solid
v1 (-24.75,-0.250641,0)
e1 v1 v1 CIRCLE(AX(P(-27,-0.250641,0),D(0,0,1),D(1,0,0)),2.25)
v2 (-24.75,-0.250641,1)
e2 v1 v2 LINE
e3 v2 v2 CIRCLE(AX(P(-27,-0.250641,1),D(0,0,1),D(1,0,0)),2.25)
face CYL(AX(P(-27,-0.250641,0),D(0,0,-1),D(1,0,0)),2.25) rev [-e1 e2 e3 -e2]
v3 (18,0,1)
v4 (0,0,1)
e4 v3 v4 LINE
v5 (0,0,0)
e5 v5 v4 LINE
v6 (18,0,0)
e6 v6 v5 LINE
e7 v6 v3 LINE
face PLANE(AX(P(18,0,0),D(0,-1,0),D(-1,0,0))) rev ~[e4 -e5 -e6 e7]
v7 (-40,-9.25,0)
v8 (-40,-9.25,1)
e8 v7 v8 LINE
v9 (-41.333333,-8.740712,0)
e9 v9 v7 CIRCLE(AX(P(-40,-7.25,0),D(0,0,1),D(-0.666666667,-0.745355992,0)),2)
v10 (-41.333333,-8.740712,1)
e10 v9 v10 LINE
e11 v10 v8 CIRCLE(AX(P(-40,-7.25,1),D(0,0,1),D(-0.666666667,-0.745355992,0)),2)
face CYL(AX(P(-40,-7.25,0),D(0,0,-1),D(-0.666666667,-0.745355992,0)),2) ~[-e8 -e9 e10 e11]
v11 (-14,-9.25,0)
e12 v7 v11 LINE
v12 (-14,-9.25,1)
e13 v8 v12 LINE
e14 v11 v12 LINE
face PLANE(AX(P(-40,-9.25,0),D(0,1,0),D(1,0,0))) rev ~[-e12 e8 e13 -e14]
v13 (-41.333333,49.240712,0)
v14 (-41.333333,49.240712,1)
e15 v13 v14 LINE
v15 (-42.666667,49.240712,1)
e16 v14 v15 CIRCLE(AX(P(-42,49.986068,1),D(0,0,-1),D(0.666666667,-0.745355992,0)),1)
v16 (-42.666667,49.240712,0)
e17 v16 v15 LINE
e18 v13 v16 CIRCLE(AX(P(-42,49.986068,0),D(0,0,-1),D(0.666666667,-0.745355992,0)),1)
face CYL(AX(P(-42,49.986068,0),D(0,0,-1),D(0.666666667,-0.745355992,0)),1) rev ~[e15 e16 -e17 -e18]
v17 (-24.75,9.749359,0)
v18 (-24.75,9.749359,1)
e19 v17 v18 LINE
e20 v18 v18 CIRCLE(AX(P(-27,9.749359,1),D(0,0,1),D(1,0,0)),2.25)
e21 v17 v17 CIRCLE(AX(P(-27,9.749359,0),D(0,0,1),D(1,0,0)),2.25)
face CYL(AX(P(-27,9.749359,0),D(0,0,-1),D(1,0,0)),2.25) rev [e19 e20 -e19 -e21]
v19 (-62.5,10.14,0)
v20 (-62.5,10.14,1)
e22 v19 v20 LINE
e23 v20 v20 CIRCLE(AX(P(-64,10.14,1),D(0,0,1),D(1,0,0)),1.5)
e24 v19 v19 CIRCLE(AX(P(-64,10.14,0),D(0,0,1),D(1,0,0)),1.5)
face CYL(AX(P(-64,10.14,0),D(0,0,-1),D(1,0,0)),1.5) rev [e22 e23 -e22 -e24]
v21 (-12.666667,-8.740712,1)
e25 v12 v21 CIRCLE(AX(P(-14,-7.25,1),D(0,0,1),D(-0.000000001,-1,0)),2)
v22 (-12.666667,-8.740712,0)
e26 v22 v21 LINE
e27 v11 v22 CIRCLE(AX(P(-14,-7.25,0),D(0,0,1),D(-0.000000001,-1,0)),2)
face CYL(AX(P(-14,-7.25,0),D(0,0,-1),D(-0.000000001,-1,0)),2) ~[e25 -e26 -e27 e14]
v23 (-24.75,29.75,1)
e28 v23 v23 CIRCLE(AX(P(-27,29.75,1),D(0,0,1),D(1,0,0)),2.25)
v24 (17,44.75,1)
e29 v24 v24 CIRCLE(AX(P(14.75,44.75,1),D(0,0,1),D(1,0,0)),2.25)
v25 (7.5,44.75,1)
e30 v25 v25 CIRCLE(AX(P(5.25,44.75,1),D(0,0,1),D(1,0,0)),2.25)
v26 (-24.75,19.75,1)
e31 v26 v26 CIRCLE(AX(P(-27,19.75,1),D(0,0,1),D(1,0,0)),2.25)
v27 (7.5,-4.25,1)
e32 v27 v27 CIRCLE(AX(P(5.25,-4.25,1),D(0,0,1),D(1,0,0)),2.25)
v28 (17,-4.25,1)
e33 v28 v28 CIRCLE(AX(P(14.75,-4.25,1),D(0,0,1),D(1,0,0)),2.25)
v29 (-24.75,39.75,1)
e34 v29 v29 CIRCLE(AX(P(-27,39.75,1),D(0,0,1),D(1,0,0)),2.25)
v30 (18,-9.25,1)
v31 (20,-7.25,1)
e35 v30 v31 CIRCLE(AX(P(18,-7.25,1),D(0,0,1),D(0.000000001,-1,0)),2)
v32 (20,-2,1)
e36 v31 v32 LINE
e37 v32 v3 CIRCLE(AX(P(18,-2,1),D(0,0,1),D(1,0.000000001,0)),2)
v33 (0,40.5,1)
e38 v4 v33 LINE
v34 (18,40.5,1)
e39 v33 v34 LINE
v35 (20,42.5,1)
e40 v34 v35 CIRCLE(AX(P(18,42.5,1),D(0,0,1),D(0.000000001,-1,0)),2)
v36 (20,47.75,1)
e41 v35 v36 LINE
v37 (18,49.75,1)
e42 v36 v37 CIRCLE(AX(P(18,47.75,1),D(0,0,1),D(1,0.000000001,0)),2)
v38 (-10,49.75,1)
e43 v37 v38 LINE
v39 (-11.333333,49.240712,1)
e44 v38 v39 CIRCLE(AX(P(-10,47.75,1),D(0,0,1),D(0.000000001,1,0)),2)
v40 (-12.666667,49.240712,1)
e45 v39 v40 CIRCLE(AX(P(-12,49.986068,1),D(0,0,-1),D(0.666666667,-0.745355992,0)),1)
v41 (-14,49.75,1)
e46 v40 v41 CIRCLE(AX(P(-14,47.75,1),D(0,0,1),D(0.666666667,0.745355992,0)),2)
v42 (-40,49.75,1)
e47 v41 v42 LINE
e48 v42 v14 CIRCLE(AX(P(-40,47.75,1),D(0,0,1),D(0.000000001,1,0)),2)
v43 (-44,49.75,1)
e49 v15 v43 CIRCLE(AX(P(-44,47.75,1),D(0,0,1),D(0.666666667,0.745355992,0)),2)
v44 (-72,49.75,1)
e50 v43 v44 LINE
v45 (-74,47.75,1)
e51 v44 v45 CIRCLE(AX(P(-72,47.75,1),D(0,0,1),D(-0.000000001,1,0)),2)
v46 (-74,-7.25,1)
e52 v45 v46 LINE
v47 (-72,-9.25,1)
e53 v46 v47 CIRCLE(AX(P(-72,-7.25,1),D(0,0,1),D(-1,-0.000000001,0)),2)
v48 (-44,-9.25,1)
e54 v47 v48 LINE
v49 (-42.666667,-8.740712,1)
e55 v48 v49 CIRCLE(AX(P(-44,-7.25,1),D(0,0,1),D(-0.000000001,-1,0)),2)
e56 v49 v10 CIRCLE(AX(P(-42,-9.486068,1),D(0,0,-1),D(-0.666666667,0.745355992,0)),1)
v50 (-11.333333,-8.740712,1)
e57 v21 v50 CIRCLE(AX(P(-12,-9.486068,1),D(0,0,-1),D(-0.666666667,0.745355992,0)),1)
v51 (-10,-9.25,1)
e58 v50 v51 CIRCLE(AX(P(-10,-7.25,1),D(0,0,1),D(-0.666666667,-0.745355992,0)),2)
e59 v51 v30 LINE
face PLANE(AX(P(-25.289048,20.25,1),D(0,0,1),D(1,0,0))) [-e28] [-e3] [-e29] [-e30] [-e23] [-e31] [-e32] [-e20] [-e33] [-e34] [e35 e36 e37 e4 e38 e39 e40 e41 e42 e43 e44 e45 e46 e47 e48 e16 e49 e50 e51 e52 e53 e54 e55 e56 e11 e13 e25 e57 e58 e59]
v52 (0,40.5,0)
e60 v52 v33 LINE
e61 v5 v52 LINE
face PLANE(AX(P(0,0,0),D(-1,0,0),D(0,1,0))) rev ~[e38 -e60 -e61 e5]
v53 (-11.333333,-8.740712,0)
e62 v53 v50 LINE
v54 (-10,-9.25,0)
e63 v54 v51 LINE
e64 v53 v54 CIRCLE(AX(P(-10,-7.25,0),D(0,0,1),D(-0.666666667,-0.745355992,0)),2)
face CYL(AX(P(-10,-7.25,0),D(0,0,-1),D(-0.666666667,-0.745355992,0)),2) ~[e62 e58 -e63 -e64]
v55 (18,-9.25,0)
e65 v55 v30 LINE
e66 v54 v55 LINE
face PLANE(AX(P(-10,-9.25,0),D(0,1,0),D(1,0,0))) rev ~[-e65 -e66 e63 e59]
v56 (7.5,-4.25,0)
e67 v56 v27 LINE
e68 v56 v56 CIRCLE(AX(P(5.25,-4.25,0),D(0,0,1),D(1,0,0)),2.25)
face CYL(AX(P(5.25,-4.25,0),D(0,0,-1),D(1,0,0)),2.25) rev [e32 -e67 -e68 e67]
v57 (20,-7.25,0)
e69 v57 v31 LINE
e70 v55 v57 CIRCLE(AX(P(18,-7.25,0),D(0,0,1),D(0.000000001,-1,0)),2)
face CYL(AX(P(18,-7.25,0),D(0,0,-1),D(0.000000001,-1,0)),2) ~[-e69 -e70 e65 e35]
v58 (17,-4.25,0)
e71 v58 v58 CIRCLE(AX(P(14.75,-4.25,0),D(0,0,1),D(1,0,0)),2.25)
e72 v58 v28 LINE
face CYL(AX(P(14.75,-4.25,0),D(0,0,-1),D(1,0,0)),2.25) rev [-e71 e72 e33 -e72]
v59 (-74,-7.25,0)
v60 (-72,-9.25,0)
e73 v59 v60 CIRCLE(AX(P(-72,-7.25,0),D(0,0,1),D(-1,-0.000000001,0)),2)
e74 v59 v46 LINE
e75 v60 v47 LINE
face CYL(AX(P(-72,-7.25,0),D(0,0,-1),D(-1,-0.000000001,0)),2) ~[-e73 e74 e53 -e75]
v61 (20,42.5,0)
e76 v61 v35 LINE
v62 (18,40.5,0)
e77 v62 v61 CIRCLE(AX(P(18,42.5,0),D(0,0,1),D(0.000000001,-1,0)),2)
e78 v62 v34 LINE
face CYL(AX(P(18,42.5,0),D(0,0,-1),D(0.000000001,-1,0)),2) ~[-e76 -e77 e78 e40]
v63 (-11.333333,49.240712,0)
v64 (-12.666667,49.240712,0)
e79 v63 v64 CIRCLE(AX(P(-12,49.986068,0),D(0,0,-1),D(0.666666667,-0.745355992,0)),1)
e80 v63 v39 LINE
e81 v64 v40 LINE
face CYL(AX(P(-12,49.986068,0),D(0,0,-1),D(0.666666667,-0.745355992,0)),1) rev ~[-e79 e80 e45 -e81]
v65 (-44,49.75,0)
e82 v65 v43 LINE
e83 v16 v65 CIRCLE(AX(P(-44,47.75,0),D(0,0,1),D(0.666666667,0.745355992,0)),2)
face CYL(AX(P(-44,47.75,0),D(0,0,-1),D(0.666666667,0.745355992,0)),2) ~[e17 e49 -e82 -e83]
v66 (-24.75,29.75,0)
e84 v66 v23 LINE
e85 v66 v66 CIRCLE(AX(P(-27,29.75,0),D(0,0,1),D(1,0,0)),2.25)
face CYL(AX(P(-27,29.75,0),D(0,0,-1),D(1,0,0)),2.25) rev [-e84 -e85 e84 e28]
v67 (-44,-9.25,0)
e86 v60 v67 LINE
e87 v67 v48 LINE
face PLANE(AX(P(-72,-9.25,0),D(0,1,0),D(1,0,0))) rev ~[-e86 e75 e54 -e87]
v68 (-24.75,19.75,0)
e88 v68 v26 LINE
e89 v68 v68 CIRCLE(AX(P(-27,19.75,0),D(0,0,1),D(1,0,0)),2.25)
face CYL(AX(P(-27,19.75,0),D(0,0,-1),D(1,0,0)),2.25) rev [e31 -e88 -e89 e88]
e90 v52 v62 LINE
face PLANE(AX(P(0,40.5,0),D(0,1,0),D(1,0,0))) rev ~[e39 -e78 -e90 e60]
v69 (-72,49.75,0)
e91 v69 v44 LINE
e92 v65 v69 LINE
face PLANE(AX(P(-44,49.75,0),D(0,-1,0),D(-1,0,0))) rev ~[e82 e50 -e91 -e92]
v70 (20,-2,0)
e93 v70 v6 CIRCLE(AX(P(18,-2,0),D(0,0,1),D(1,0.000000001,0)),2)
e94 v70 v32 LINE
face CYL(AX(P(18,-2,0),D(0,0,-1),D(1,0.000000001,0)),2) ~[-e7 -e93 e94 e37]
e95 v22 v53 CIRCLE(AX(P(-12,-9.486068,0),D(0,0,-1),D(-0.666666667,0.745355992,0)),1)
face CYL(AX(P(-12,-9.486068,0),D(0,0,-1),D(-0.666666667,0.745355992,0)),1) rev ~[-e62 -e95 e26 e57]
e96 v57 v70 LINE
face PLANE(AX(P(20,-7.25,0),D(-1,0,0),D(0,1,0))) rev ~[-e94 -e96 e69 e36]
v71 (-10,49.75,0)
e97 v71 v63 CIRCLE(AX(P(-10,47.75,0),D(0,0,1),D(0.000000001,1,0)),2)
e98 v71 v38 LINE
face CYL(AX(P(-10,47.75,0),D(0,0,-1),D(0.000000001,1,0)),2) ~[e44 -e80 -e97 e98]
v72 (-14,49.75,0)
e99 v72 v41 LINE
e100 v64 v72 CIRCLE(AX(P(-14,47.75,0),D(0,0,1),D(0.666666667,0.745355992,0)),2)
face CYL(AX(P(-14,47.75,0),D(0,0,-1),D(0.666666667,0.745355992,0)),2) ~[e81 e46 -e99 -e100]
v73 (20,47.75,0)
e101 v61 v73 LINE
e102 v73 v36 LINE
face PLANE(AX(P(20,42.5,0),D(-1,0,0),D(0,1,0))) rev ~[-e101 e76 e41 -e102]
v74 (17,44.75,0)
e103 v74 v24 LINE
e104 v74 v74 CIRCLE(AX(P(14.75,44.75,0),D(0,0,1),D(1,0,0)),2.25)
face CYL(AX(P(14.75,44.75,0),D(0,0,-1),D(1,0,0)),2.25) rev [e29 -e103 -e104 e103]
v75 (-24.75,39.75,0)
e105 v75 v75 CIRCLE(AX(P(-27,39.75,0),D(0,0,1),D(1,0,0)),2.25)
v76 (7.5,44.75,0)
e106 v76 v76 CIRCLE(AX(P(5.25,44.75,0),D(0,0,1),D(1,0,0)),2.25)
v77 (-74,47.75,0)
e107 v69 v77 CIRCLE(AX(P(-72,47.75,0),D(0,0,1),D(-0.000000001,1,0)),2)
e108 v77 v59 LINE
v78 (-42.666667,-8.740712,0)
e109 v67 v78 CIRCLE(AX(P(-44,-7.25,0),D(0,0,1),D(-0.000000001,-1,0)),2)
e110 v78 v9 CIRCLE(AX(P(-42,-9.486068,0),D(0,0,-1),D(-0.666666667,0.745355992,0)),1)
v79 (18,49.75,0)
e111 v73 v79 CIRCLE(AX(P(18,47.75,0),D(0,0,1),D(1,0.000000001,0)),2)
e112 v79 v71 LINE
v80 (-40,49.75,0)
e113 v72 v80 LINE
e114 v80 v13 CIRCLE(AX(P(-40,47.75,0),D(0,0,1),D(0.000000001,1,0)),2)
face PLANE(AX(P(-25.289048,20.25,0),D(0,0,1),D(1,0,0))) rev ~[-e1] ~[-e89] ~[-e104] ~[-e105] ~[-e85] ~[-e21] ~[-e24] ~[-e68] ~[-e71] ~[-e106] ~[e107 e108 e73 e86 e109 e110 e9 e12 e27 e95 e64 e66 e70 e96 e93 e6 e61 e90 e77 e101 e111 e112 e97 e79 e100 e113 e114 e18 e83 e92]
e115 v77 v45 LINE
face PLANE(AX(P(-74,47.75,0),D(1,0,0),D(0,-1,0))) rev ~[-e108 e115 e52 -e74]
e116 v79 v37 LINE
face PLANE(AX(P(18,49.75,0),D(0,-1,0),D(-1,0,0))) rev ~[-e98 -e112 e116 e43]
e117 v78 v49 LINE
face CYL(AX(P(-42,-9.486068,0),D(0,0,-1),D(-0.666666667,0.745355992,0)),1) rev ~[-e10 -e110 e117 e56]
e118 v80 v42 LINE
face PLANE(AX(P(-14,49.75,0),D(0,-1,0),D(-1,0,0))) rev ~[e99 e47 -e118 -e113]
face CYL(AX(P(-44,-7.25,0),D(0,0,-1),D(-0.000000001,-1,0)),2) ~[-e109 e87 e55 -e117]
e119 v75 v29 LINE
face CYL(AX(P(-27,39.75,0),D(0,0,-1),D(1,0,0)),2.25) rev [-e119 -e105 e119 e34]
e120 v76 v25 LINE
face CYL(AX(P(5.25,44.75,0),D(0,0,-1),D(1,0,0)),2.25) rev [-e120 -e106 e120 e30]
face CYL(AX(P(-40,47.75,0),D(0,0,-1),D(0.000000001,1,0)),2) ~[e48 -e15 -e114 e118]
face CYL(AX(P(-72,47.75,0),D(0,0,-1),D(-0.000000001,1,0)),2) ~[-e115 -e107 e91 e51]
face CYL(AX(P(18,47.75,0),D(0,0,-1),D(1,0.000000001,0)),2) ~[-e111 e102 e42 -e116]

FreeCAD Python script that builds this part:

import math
import FreeCAD as App
import Part
import Sketcher

doc = App.newDocument("Part")
params = doc.addObject("Spreadsheet::Sheet", "Params")
for row, (alias, value) in enumerate([
    ("sketch1_diameter", "3 mm"),
    ("sketch1_radius", "2 mm"),
    ("sketch1_radius2", "1 mm"),
    ("sketch1_diameter2", "4.5 mm"),
    ("sketch1_width", "28 mm"),
    ("pad1_length", "1 mm"),
], start=1):
    params.set(f"A{row}", alias)
    params.set(f"B{row}", "=" + value)
    params.setAlias(f"B{row}", alias)

body = doc.addObject("PartDesign::Body", "Body")

sketch1 = body.newObject("Sketcher::SketchObject", "Sketch")
sketch1.AttachmentSupport = (doc.getObject("XY_Plane"), [""])
sketch1.MapMode = "FlatFace"
sketch1.addGeometry([
    Part.LineSegment(App.Vector(20, 42.5, 0), App.Vector(20, 47.8, 0)),
    Part.ArcOfCircle(Part.Circle(App.Vector(18, 47.7, 0), App.Vector(0, 0, 1), 2), math.radians(0), math.radians(90)),
    Part.LineSegment(App.Vector(18, 49.8, 0), App.Vector(-10, 49.8, 0)),
    Part.ArcOfCircle(Part.Circle(App.Vector(-10, 47.8, 0), App.Vector(0, 0, 1), 2), math.radians(90), math.radians(132)),
    Part.ArcOfCircle(Part.Circle(App.Vector(-12, 50, 0), App.Vector(0, 0, 1), 1), math.radians(-132), math.radians(-48)),
    Part.ArcOfCircle(Part.Circle(App.Vector(-14, 47.8, 0), App.Vector(0, 0, 1), 2), math.radians(48), math.radians(90)),
    Part.LineSegment(App.Vector(-14, 49.8, 0), App.Vector(-40, 49.8, 0)),
    Part.ArcOfCircle(Part.Circle(App.Vector(-40, 47.8, 0), App.Vector(0, 0, 1), 2), math.radians(90), math.radians(132)),
    Part.ArcOfCircle(Part.Circle(App.Vector(-42, 50, 0), App.Vector(0, 0, 1), 1), math.radians(-132), math.radians(-48)),
    Part.ArcOfCircle(Part.Circle(App.Vector(-44, 47.8, 0), App.Vector(0, 0, 1), 2), math.radians(48), math.radians(90)),
    Part.LineSegment(App.Vector(-44, 49.8, 0), App.Vector(-72, 49.8, 0)),
    Part.ArcOfCircle(Part.Circle(App.Vector(-72, 47.7, 0), App.Vector(0, 0, 1), 2), math.radians(90), math.radians(180)),
    Part.LineSegment(App.Vector(-74, 47.8, 0), App.Vector(-74, -7.2, 0)),
    Part.ArcOfCircle(Part.Circle(App.Vector(-72, -7.2, 0), App.Vector(0, 0, 1), 2), math.radians(-180), math.radians(-90)),
    Part.LineSegment(App.Vector(-72, -9.2, 0), App.Vector(-44, -9.2, 0)),
    Part.ArcOfCircle(Part.Circle(App.Vector(-44, -7.3, 0), App.Vector(0, 0, 1), 2), math.radians(-90), math.radians(-48)),
    Part.ArcOfCircle(Part.Circle(App.Vector(-42, -9.5, 0), App.Vector(0, 0, 1), 1), math.radians(48), math.radians(132)),
    Part.ArcOfCircle(Part.Circle(App.Vector(-40, -7.3, 0), App.Vector(0, 0, 1), 2), math.radians(-132), math.radians(-90)),
    Part.LineSegment(App.Vector(-40, -9.2, 0), App.Vector(-14, -9.2, 0)),
    Part.ArcOfCircle(Part.Circle(App.Vector(-14, -7.3, 0), App.Vector(0, 0, 1), 2), math.radians(-90), math.radians(-48)),
    Part.ArcOfCircle(Part.Circle(App.Vector(-12, -9.5, 0), App.Vector(0, 0, 1), 1), math.radians(48), math.radians(132)),
    Part.ArcOfCircle(Part.Circle(App.Vector(-10, -7.3, 0), App.Vector(0, 0, 1), 2), math.radians(-132), math.radians(-90)),
    Part.LineSegment(App.Vector(-10, -9.2, 0), App.Vector(18, -9.2, 0)),
    Part.ArcOfCircle(Part.Circle(App.Vector(18, -7.2, 0), App.Vector(0, 0, 1), 2), math.radians(-90), math.radians(0)),
    Part.LineSegment(App.Vector(20, -7.2, 0), App.Vector(20, -2, 0)),
    Part.ArcOfCircle(Part.Circle(App.Vector(18, -2, 0), App.Vector(0, 0, 1), 2), math.radians(0), math.radians(90)),
    Part.LineSegment(App.Vector(18, 0, 0), App.Vector(0, 0, 0)),
    Part.LineSegment(App.Vector(0, 0, 0), App.Vector(0, 40.5, 0)),
    Part.LineSegment(App.Vector(0, 40.5, 0), App.Vector(18, 40.5, 0)),
    Part.ArcOfCircle(Part.Circle(App.Vector(18, 42.5, 0), App.Vector(0, 0, 1), 2), math.radians(-90), math.radians(0)),
    Part.Circle(App.Vector(-27, -0.3, 0), App.Vector(0, 0, 1), 2.2),
    Part.Circle(App.Vector(-64, 10.1, 0), App.Vector(0, 0, 1), 1.5),
    Part.Circle(App.Vector(-27, 9.7, 0), App.Vector(0, 0, 1), 2.2),
    Part.Circle(App.Vector(-27, 19.8, 0), App.Vector(0, 0, 1), 2.2),
    Part.Circle(App.Vector(5.2, -4.2, 0), App.Vector(0, 0, 1), 2.2),
    Part.Circle(App.Vector(14.8, -4.2, 0), App.Vector(0, 0, 1), 2.2),
    Part.Circle(App.Vector(-27, 29.8, 0), App.Vector(0, 0, 1), 2.2),
    Part.Circle(App.Vector(-27, 39.8, 0), App.Vector(0, 0, 1), 2.2),
    Part.Circle(App.Vector(5.2, 44.8, 0), App.Vector(0, 0, 1), 2.2),
    Part.Circle(App.Vector(14.8, 44.8, 0), App.Vector(0, 0, 1), 2.2),
], False)
sketch1.addConstraint([
    Sketcher.Constraint("Tangent", 0, 2, 1, 1),
    Sketcher.Constraint("Tangent", 1, 2, 2, 1),
    Sketcher.Constraint("Tangent", 2, 2, 3, 1),
    Sketcher.Constraint("Tangent", 3, 2, 4, 2),
    Sketcher.Constraint("Tangent", 4, 1, 5, 1),
    Sketcher.Constraint("Tangent", 5, 2, 6, 1),
    Sketcher.Constraint("Tangent", 6, 2, 7, 1),
    Sketcher.Constraint("Tangent", 7, 2, 8, 2),
    Sketcher.Constraint("Tangent", 8, 1, 9, 1),
    Sketcher.Constraint("Tangent", 9, 2, 10, 1),
    Sketcher.Constraint("Tangent", 10, 2, 11, 1),
    Sketcher.Constraint("Tangent", 11, 2, 12, 1),
    Sketcher.Constraint("Tangent", 12, 2, 13, 1),
    Sketcher.Constraint("Tangent", 13, 2, 14, 1),
    Sketcher.Constraint("Tangent", 14, 2, 15, 1),
    Sketcher.Constraint("Tangent", 15, 2, 16, 2),
    Sketcher.Constraint("Tangent", 16, 1, 17, 1),
    Sketcher.Constraint("Tangent", 17, 2, 18, 1),
    Sketcher.Constraint("Tangent", 18, 2, 19, 1),
    Sketcher.Constraint("Tangent", 19, 2, 20, 2),
    Sketcher.Constraint("Tangent", 20, 1, 21, 1),
    Sketcher.Constraint("Tangent", 21, 2, 22, 1),
    Sketcher.Constraint("Tangent", 22, 2, 23, 1),
    Sketcher.Constraint("Tangent", 23, 2, 24, 1),
    Sketcher.Constraint("Tangent", 24, 2, 25, 1),
    Sketcher.Constraint("Tangent", 25, 2, 26, 1),
    Sketcher.Constraint("Coincident", 26, 2, 27, 1),
    Sketcher.Constraint("Coincident", 27, 2, 28, 1),
    Sketcher.Constraint("Tangent", 28, 2, 29, 1),
    Sketcher.Constraint("Tangent", 29, 2, 0, 1),
    Sketcher.Constraint("Vertical", 0),
    Sketcher.Constraint("Horizontal", 2),
    Sketcher.Constraint("Horizontal", 6),
    Sketcher.Constraint("Horizontal", 10),
    Sketcher.Constraint("Vertical", 12),
    Sketcher.Constraint("Horizontal", 14),
    Sketcher.Constraint("Horizontal", 18),
    Sketcher.Constraint("Horizontal", 22),
    Sketcher.Constraint("Vertical", 24),
    Sketcher.Constraint("Horizontal", 26),
    Sketcher.Constraint("Vertical", 27),
    Sketcher.Constraint("Horizontal", 28),
    Sketcher.Constraint("Coincident", 26, 2, -1, 1),
    Sketcher.Constraint("Equal", 1, 3),
    Sketcher.Constraint("Equal", 3, 5),
    Sketcher.Constraint("Equal", 5, 7),
    Sketcher.Constraint("Equal", 4, 8),
    Sketcher.Constraint("Equal", 7, 9),
    Sketcher.Constraint("Equal", 9, 11),
    Sketcher.Constraint("Equal", 11, 13),
    Sketcher.Constraint("Equal", 13, 15),
    Sketcher.Constraint("Equal", 8, 16),
    Sketcher.Constraint("Equal", 15, 17),
    Sketcher.Constraint("Equal", 17, 19),
    Sketcher.Constraint("Equal", 16, 20),
    Sketcher.Constraint("Equal", 19, 21),
    Sketcher.Constraint("Equal", 21, 23),
    Sketcher.Constraint("Equal", 23, 25),
    Sketcher.Constraint("Equal", 25, 29),
    Sketcher.Constraint("Equal", 30, 32),
    Sketcher.Constraint("Equal", 32, 33),
    Sketcher.Constraint("Equal", 33, 34),
    Sketcher.Constraint("Equal", 34, 35),
    Sketcher.Constraint("Equal", 35, 36),
    Sketcher.Constraint("Equal", 36, 37),
    Sketcher.Constraint("Equal", 37, 38),
    Sketcher.Constraint("Equal", 38, 39),
    Sketcher.Constraint("Horizontal", 3, 3, 5, 3),
    Sketcher.Constraint("Horizontal", 4, 3, 8, 3),
    Sketcher.Constraint("Horizontal", 7, 3, 9, 3),
    Sketcher.Constraint("Horizontal", 15, 3, 17, 3),
    Sketcher.Constraint("Horizontal", 16, 3, 20, 3),
    Sketcher.Constraint("Horizontal", 19, 3, 21, 3),
    Sketcher.Constraint("Horizontal", 34, 3, 35, 3),
    Sketcher.Constraint("Horizontal", 38, 3, 39, 3),
    Sketcher.Constraint("Vertical", 9, 3, 15, 3),
    Sketcher.Constraint("Vertical", 8, 3, 16, 3),
    Sketcher.Constraint("Vertical", 5, 3, 19, 3),
    Sketcher.Constraint("Vertical", 1, 3, 23, 3),
    Sketcher.Constraint("Vertical", 30, 3, 32, 3),
    Sketcher.Constraint("Vertical", 32, 3, 33, 3),
    Sketcher.Constraint("Vertical", 33, 3, 36, 3),
    Sketcher.Constraint("Vertical", 36, 3, 37, 3),
    Sketcher.Constraint("Vertical", 34, 3, 38, 3),
    Sketcher.Constraint("Vertical", 35, 3, 39, 3),
    Sketcher.Constraint("Equal", 2, 10),
    Sketcher.Constraint("Equal", 0, 24),
    Sketcher.Constraint("Diameter", 31, 3.0),
    Sketcher.Constraint("Radius", 1, 2.0),
    Sketcher.Constraint("Radius", 4, 1.0),
    Sketcher.Constraint("Diameter", 30, 4.5),
    Sketcher.Constraint("DistanceX", 2, 2, 2, 1, 28.0),
    Sketcher.Constraint("DistanceX", 6, 2, 6, 1, 26.0),
    Sketcher.Constraint("DistanceX", 26, 2, 26, 1, 18.0),
    Sketcher.Constraint("DistanceY", 12, 2, 12, 1, 55.0),
    Sketcher.Constraint("DistanceY", 27, 1, 27, 2, 40.5),
    Sketcher.Constraint("DistanceX", 4, 3, -1, 1, 12.0),
    Sketcher.Constraint("DistanceX", 30, 3, -1, 1, 27.0),
    Sketcher.Constraint("DistanceX", 31, 3, -1, 1, 64.0),
    Sketcher.Constraint("DistanceY", 30, 3, 32, 3, 10.0),
    Sketcher.Constraint("DistanceY", 17, 3, 33, 3, 27.0),
    Sketcher.Constraint("DistanceY", 23, 3, 34, 3, 3.0),
    Sketcher.Constraint("DistanceY", 33, 3, 36, 3, 10.0),
    Sketcher.Constraint("DistanceY", 36, 3, 37, 3, 10.0),
    Sketcher.Constraint("DistanceY", 38, 3, 1, 3, 3.0),
    Sketcher.Constraint("DistanceX", 34, 3, 35, 3, 9.5),
    Sketcher.Constraint("DistanceY", -1, 1, 31, 3, 10.14),
    Sketcher.Constraint("DistanceX", -1, 1, 34, 3, 5.25),
    Sketcher.Constraint("DistanceY", 30, 3, -1, 1, 0.250641),
])
sketch1.setExpression("Constraints[87]", "Params.sketch1_diameter")
sketch1.setExpression("Constraints[88]", "Params.sketch1_radius")
sketch1.setExpression("Constraints[89]", "Params.sketch1_radius2")
sketch1.setExpression("Constraints[90]", "Params.sketch1_diameter2")
sketch1.setExpression("Constraints[91]", "Params.sketch1_width")
pad1 = body.newObject("PartDesign::Pad", "Pad")
pad1.Profile = sketch1
pad1.setExpression("Length", "Params.pad1_length")

doc.recompute()
